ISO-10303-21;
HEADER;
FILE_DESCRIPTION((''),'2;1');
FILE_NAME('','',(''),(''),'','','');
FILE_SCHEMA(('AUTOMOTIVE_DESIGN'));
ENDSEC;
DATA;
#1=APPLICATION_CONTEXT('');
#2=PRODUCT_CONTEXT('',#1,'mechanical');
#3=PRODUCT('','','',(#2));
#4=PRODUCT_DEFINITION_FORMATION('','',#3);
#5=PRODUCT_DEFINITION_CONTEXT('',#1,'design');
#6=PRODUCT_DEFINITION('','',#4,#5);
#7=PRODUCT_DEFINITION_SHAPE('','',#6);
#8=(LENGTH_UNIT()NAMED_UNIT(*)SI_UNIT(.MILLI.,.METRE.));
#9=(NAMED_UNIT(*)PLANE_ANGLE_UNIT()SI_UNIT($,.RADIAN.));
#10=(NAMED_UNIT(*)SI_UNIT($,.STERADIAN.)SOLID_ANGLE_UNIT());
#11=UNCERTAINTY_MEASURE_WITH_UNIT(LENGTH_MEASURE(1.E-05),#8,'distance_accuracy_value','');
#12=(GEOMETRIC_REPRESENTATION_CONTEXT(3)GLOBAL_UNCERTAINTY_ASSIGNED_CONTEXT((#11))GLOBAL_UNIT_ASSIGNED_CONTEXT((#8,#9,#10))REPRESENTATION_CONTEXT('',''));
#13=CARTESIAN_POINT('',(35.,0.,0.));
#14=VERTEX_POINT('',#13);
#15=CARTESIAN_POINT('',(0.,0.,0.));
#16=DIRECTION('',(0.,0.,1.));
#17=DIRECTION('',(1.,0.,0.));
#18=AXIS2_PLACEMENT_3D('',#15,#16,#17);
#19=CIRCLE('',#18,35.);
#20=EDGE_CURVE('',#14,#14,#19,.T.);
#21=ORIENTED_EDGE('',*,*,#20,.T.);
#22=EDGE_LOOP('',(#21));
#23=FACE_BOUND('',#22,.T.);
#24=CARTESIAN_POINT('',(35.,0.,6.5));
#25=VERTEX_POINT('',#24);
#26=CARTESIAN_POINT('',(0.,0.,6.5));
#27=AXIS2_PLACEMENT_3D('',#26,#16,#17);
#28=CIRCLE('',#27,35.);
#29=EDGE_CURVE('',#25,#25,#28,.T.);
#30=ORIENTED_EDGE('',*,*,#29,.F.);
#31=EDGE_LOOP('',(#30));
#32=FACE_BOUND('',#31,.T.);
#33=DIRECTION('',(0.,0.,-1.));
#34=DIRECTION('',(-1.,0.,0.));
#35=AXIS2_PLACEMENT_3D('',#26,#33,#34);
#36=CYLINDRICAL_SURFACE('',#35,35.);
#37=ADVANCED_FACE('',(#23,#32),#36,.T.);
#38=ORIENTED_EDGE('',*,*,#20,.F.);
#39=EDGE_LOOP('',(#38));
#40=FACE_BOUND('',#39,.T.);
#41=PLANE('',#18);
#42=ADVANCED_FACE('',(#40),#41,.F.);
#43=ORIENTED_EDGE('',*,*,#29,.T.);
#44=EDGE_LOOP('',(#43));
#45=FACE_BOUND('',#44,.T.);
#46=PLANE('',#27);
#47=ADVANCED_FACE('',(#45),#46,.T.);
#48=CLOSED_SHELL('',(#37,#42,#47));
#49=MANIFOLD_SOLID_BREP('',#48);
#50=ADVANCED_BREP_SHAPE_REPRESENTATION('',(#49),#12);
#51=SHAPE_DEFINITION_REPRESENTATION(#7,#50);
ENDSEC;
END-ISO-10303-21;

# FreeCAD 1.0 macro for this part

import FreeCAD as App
import Part
import Sketcher
from FreeCAD import Vector

doc = App.newDocument("Part")
body = doc.addObject("PartDesign::Body", "Body")

sketch1 = doc.addObject("Sketcher::SketchObject", "Sketch")
body.addObject(sketch1)
sketch1.AttachmentSupport = (doc.XY_Plane, [""])
sketch1.MapMode = "FlatFace"
sketch1.addGeometry(Part.Circle(Vector(0, 0, 0), Vector(0, 0, 1), 35), False)
sketch1.addConstraint([
    Sketcher.Constraint("Coincident", 0, 3, -1, 1),
    Sketcher.Constraint("Diameter", 0, 70.0),
])
pad1 = doc.addObject("PartDesign::Pad", "Pad")
body.addObject(pad1)
pad1.Profile = sketch1
pad1.Length = 6.5

doc.recompute()
